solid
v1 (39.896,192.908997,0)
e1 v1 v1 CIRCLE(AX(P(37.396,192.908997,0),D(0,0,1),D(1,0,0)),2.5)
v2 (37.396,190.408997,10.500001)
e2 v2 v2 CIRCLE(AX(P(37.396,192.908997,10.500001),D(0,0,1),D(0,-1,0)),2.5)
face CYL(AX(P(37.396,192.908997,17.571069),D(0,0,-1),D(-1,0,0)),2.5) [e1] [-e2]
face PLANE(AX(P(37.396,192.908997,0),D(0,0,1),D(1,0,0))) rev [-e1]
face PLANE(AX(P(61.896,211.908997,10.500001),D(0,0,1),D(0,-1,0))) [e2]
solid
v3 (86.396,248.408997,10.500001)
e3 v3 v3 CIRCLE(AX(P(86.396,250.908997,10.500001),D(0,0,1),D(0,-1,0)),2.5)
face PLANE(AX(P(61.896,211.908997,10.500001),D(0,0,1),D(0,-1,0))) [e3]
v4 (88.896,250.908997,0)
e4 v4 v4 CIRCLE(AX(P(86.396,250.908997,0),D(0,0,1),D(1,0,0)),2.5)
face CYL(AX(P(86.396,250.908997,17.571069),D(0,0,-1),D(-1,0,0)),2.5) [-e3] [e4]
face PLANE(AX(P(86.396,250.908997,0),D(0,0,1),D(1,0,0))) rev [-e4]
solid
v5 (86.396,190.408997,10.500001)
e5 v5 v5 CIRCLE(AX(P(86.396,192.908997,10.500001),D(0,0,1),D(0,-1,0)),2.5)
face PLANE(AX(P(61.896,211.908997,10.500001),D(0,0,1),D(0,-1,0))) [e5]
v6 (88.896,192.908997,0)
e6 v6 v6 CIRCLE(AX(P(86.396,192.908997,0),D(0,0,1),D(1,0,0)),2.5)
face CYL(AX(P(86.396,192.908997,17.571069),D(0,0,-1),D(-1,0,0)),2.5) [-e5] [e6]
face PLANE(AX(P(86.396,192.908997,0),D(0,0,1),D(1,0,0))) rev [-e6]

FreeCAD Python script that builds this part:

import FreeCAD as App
import Part
import Sketcher

V = App.Vector
Q = App.Units.Quantity

doc = App.newDocument("Part")
body = doc.addObject("PartDesign::Body", "Body")

sketch1 = body.newObject("Sketcher::SketchObject", "Sketch")
sketch1.AttachmentSupport = (doc.getObject("XY_Plane"), [""])
sketch1.MapMode = "FlatFace"
sketch1.addGeometry(Part.Circle(V(37.4, 192.9, 0), V(0, 0, 1), 2.5), False)
sketch1.addConstraint([
    Sketcher.Constraint("Diameter", 0, Q("5 mm")),
    Sketcher.Constraint("DistanceX", -1, 1, 0, 3, Q("37.396 mm")),
    Sketcher.Constraint("DistanceY", -1, 1, 0, 3, Q("192.908997 mm")),
])
pad1 = body.newObject("PartDesign::Pad", "Pad")
pad1.Profile = sketch1
pad1.Length = 10.500001
body2 = doc.addObject("PartDesign::Body", "Body001")

sketch2 = body2.newObject("Sketcher::SketchObject", "Sketch001")
sketch2.AttachmentSupport = (doc.getObject("XY_Plane001"), [""])
sketch2.MapMode = "FlatFace"
sketch2.addGeometry(Part.Circle(V(86.4, 192.9, 0), V(0, 0, 1), 2.5), False)
sketch2.addConstraint([
    Sketcher.Constraint("Diameter", 0, Q("5 mm")),
    Sketcher.Constraint("DistanceX", -1, 1, 0, 3, Q("86.396 mm")),
    Sketcher.Constraint("DistanceY", -1, 1, 0, 3, Q("192.908997 mm")),
])
pad2 = body2.newObject("PartDesign::Pad", "Pad001")
pad2.Profile = sketch2
pad2.Length = 10.500001
body3 = doc.addObject("PartDesign::Body", "Body002")

sketch3 = body3.newObject("Sketcher::SketchObject", "Sketch002")
sketch3.AttachmentSupport = (doc.getObject("XY_Plane002"), [""])
sketch3.MapMode = "FlatFace"
sketch3.addGeometry(Part.Circle(V(86.4, 250.9, 0), V(0, 0, 1), 2.5), False)
sketch3.addConstraint([
    Sketcher.Constraint("Diameter", 0, Q("5 mm")),
    Sketcher.Constraint("DistanceX", -1, 1, 0, 3, Q("86.396 mm")),
    Sketcher.Constraint("DistanceY", -1, 1, 0, 3, Q("250.908997 mm")),
])
pad3 = body3.newObject("PartDesign::Pad", "Pad002")
pad3.Profile = sketch3
pad3.Length = 10.500001

doc.recompute()
